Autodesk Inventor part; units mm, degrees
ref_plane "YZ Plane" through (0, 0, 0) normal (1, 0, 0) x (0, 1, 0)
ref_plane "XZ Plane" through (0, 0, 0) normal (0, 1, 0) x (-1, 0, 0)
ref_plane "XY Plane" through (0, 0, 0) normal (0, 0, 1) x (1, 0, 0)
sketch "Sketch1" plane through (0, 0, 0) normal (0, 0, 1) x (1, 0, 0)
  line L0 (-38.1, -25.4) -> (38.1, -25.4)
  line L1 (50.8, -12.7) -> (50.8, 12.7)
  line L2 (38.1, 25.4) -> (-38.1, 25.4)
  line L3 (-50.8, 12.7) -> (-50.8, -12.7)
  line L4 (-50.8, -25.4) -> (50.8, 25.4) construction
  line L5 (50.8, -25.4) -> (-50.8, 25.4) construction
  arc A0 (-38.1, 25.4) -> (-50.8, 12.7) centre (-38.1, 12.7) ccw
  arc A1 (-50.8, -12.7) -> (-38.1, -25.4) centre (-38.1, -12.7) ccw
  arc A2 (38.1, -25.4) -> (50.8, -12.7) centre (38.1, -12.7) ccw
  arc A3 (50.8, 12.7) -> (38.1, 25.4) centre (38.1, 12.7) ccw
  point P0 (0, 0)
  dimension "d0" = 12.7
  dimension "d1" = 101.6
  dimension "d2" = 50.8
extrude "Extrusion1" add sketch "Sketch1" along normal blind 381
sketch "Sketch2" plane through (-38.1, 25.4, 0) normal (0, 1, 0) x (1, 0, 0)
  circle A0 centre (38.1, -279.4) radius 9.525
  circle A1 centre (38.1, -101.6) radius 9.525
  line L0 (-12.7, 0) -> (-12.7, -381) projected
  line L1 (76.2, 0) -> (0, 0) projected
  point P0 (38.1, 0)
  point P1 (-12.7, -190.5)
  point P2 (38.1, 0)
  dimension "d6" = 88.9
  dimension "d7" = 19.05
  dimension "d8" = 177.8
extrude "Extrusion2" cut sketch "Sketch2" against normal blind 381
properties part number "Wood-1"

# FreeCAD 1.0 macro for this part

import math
import FreeCAD as App
import Part
import Sketcher

V = App.Vector
Q = App.Units.Quantity

doc = App.newDocument("Part")
body = doc.addObject("PartDesign::Body", "Body")

# Sketch on XY plane
sketch1 = body.newObject("Sketcher::SketchObject", "Sketch")
sketch1.AttachmentSupport = (doc.getObject("XY_Plane"), [""])
sketch1.MapMode = "FlatFace"
sketch1.addGeometry(Part.ArcOfCircle(Part.Circle(V(-38, -13, 0), V(0, 0, 1), 13), math.radians(180), math.radians(270)), False)
sketch1.addGeometry(Part.LineSegment(V(-38, -25, 0), V(38, -25, 0)), False)
sketch1.addGeometry(Part.ArcOfCircle(Part.Circle(V(38, -13, 0), V(0, 0, 1), 13), math.radians(-90), math.radians(0)), False)
sketch1.addGeometry(Part.LineSegment(V(51, -13, 0), V(51, 13, 0)), False)
sketch1.addGeometry(Part.ArcOfCircle(Part.Circle(V(38, 13, 0), V(0, 0, 1), 13), math.radians(0), math.radians(90)), False)
sketch1.addGeometry(Part.LineSegment(V(38, 25, 0), V(-38, 25, 0)), False)
sketch1.addGeometry(Part.ArcOfCircle(Part.Circle(V(-38, 13, 0), V(0, 0, 1), 13), math.radians(90), math.radians(180)), False)
sketch1.addGeometry(Part.LineSegment(V(-51, 13, 0), V(-51, -13, 0)), False)
sketch1.addConstraint(Sketcher.Constraint("Tangent", 0, 2, 1, 1))
sketch1.addConstraint(Sketcher.Constraint("Tangent", 1, 2, 2, 1))
sketch1.addConstraint(Sketcher.Constraint("Tangent", 2, 2, 3, 1))
sketch1.addConstraint(Sketcher.Constraint("Tangent", 3, 2, 4, 1))
sketch1.addConstraint(Sketcher.Constraint("Tangent", 4, 2, 5, 1))
sketch1.addConstraint(Sketcher.Constraint("Tangent", 5, 2, 6, 1))
sketch1.addConstraint(Sketcher.Constraint("Tangent", 6, 2, 7, 1))
sketch1.addConstraint(Sketcher.Constraint("Tangent", 7, 2, 0, 1))
sketch1.addConstraint(Sketcher.Constraint("Horizontal", 1))
sketch1.addConstraint(Sketcher.Constraint("Vertical", 3))
sketch1.addConstraint(Sketcher.Constraint("Horizontal", 5))
sketch1.addConstraint(Sketcher.Constraint("Vertical", 7))
sketch1.addConstraint(Sketcher.Constraint("Equal", 0, 2))
sketch1.addConstraint(Sketcher.Constraint("Equal", 2, 4))
sketch1.addConstraint(Sketcher.Constraint("Equal", 4, 6))
sketch1.addConstraint(Sketcher.Constraint("Symmetric", 0, 3, 4, 3, -1, 1))
sketch1.addConstraint(Sketcher.Constraint("Radius", 0, Q("0.5 in")))
sketch1.addConstraint(Sketcher.Constraint("DistanceX", -1, 1, 2, 2, Q("2 in")))
sketch1.addConstraint(Sketcher.Constraint("DistanceY", 1, 2, 4, 2, Q("2 in")))
pad1 = body.newObject("PartDesign::Pad", "Pad")
pad1.Profile = sketch1
pad1.Length = Q("15 in")

# Sketch on XZ plane
sketch2 = body.newObject("Sketcher::SketchObject", "Sketch001")
sketch2.AttachmentSupport = (doc.getObject("XZ_Plane"), [""])
sketch2.MapMode = "FlatFace"
sketch2.AttachmentOffset = App.Placement(V(0, 0, -1 * 25.4), App.Rotation())
sketch2.addGeometry(Part.Circle(V(0, 279, 0), V(0, 0, 1), 10), False)
sketch2.addGeometry(Part.Circle(V(0, 102, 0), V(0, 0, 1), 10), False)
sketch2.addConstraint(Sketcher.Constraint("Equal", 0, 1))
sketch2.addConstraint(Sketcher.Constraint("PointOnObject", 0, 3, -2))
sketch2.addConstraint(Sketcher.Constraint("PointOnObject", 1, 3, -2))
sketch2.addConstraint(Sketcher.Constraint("Diameter", 0, Q("0.75 in")))
sketch2.addConstraint(Sketcher.Constraint("DistanceY", 1, 3, 0, 3, Q("7 in")))
sketch2.addConstraint(Sketcher.Constraint("DistanceY", -1, 1, 0, 3, Q("11 in")))
pocket1 = body.newObject("PartDesign::Pocket", "Pocket")
pocket1.Profile = sketch2
pocket1.Length = Q("15 in")
pocket1.Reversed = True

doc.recompute()
